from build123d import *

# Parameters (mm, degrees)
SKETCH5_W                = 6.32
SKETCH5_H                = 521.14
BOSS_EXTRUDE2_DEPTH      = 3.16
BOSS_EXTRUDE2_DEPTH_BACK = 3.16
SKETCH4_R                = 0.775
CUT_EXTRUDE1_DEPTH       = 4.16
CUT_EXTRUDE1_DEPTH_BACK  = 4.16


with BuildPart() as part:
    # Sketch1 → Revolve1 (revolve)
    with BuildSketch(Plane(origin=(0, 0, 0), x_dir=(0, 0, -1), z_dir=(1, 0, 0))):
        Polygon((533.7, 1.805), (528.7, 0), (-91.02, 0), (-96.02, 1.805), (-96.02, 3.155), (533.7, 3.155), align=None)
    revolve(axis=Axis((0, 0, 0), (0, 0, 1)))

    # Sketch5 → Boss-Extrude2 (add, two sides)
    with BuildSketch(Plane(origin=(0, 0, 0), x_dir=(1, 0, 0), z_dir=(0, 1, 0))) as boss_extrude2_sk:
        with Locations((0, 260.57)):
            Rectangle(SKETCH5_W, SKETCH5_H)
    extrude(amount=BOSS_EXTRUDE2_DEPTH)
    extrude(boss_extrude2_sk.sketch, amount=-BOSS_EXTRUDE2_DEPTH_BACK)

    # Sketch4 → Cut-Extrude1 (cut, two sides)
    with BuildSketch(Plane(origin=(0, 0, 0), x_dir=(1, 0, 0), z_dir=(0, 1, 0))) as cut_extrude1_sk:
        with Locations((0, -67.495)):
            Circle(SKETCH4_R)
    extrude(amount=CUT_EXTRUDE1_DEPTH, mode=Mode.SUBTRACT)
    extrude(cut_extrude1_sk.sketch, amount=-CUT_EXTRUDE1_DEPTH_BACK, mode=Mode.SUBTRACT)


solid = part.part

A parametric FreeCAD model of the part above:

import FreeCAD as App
import Part
import Sketcher


def add_polygon(sketch, points):
    """Adds a closed chain of lines whose ends are joined by coincident constraints."""
    first, n = sketch.GeometryCount, len(points)
    for a, b in zip(points, points[1:] + points[:1]):
        sketch.addGeometry(Part.LineSegment(App.Vector(*a, 0), App.Vector(*b, 0)), False)
    for i in range(n):
        sketch.addConstraint(Sketcher.Constraint("Coincident", first + i, 2, first + (i + 1) % n, 1))

doc = App.newDocument("Part")
body = doc.addObject("PartDesign::Body", "Body")

sketch1 = body.newObject("Sketcher::SketchObject", "Sketch")
sketch1.AttachmentSupport = (doc.getObject("YZ_Plane"), [""])
sketch1.MapMode = "FlatFace"
add_polygon(sketch1, [(0, -528.7), (1.8, -533.7), (3.2, -533.7), (3.2, 96), (1.8, 96), (0, 91)])
sketch1.addConstraint(Sketcher.Constraint("Horizontal", 1))
sketch1.addConstraint(Sketcher.Constraint("Vertical", 2))
sketch1.addConstraint(Sketcher.Constraint("Horizontal", 3))
sketch1.addConstraint(Sketcher.Constraint("Vertical", 5))
sketch1.addConstraint(Sketcher.Constraint("PointOnObject", 4, 2, -2))
sketch1.addConstraint(Sketcher.Constraint("Vertical", 0, 2, 3, 2))
sketch1.addConstraint(Sketcher.Constraint("Equal", 0, 4))
sketch1.addConstraint(Sketcher.Constraint("DistanceY", 4, 2, 3, 2, 5.0))
sketch1.addConstraint(Sketcher.Constraint("DistanceX", 1, 1, 1, 2, 1.35))
sketch1.addConstraint(Sketcher.Constraint("DistanceY", 2, 1, 2, 2, 629.72))
sketch1.addConstraint(Sketcher.Constraint("DistanceY", 0, 2, -1, 1, 533.7))
sketch1.addConstraint(Sketcher.Constraint("DistanceX", -1, 1, 0, 2, 1.805))
revolution = body.newObject("PartDesign::Revolution", "Revolution")
revolution.Profile = sketch1
revolution.ReferenceAxis = (sketch1, ["V_Axis"])
revolution.Angle = 360

sketch2 = body.newObject("Sketcher::SketchObject", "Sketch001")
sketch2.AttachmentSupport = (doc.getObject("XZ_Plane"), [""])
sketch2.MapMode = "FlatFace"
add_polygon(sketch2, [(-3, -521), (-3, 0), (3, 0), (3, -521)])
sketch2.addConstraint(Sketcher.Constraint("Vertical", 0))
sketch2.addConstraint(Sketcher.Constraint("Horizontal", 1))
sketch2.addConstraint(Sketcher.Constraint("Vertical", 2))
sketch2.addConstraint(Sketcher.Constraint("Horizontal", 3))
sketch2.addConstraint(Sketcher.Constraint("Symmetric", 0, 2, 1, 2, -1, 1))
sketch2.addConstraint(Sketcher.Constraint("DistanceX", 1, 1, 1, 2, 6.32))
sketch2.addConstraint(Sketcher.Constraint("DistanceY", 0, 1, 0, 2, 521.14))
pad1 = body.newObject("PartDesign::Pad", "Pad")
pad1.Profile = sketch2
pad1.Type = "TwoLengths"
pad1.Length = 3.16
pad1.Length2 = 3.16
pad1.Reversed = True

sketch3 = body.newObject("Sketcher::SketchObject", "Sketch002")
sketch3.AttachmentSupport = (doc.getObject("XZ_Plane"), [""])
sketch3.MapMode = "FlatFace"
sketch3.addGeometry(Part.Circle(App.Vector(0, 67.5, 0), App.Vector(0, 0, 1), 0.8), False)
sketch3.addConstraint(Sketcher.Constraint("PointOnObject", 0, 3, -2))
sketch3.addConstraint(Sketcher.Constraint("Diameter", 0, 1.55))
sketch3.addConstraint(Sketcher.Constraint("DistanceY", -1, 1, 0, 3, 67.495))
pocket1 = body.newObject("PartDesign::Pocket", "Pocket")
pocket1.Profile = sketch3
pocket1.Type = "ThroughAll"
pocket1.Midplane = True

doc.recompute()
